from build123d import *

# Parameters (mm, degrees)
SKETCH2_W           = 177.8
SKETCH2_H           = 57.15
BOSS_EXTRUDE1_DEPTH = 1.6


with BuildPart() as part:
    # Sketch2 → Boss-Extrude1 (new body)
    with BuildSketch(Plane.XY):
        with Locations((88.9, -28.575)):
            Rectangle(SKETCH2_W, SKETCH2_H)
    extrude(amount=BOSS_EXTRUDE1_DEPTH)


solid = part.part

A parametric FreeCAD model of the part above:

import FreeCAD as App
import Part
import Sketcher
from FreeCAD import Vector
Q = App.Units.Quantity

doc = App.newDocument("Part")
body = doc.addObject("PartDesign::Body", "Body")

sketch1 = doc.addObject("Sketcher::SketchObject", "Sketch")
body.addObject(sketch1)
sketch1.AttachmentSupport = (doc.XY_Plane, [""])
sketch1.MapMode = "FlatFace"
sketch1.addGeometry([
    Part.LineSegment(Vector(0, 0, 0), Vector(0, -57, 0)),
    Part.LineSegment(Vector(0, -57, 0), Vector(178, -57, 0)),
    Part.LineSegment(Vector(178, -57, 0), Vector(178, 0, 0)),
    Part.LineSegment(Vector(178, 0, 0), Vector(0, 0, 0)),
], False)
sketch1.addConstraint([
    Sketcher.Constraint("Coincident", 0, 2, 1, 1),
    Sketcher.Constraint("Coincident", 1, 2, 2, 1),
    Sketcher.Constraint("Coincident", 2, 2, 3, 1),
    Sketcher.Constraint("Coincident", 3, 2, 0, 1),
    Sketcher.Constraint("Vertical", 0),
    Sketcher.Constraint("Horizontal", 1),
    Sketcher.Constraint("Vertical", 2),
    Sketcher.Constraint("Horizontal", 3),
    Sketcher.Constraint("Coincident", 3, 2, -1, 1),
    Sketcher.Constraint("DistanceX", 1, 1, 1, 2, Q("7 in")),
    Sketcher.Constraint("DistanceY", 0, 2, 0, 1, Q("2.25 in")),
])
pad1 = doc.addObject("PartDesign::Pad", "Pad")
body.addObject(pad1)
pad1.Profile = sketch1
pad1.Length = 1.6

doc.recompute()
